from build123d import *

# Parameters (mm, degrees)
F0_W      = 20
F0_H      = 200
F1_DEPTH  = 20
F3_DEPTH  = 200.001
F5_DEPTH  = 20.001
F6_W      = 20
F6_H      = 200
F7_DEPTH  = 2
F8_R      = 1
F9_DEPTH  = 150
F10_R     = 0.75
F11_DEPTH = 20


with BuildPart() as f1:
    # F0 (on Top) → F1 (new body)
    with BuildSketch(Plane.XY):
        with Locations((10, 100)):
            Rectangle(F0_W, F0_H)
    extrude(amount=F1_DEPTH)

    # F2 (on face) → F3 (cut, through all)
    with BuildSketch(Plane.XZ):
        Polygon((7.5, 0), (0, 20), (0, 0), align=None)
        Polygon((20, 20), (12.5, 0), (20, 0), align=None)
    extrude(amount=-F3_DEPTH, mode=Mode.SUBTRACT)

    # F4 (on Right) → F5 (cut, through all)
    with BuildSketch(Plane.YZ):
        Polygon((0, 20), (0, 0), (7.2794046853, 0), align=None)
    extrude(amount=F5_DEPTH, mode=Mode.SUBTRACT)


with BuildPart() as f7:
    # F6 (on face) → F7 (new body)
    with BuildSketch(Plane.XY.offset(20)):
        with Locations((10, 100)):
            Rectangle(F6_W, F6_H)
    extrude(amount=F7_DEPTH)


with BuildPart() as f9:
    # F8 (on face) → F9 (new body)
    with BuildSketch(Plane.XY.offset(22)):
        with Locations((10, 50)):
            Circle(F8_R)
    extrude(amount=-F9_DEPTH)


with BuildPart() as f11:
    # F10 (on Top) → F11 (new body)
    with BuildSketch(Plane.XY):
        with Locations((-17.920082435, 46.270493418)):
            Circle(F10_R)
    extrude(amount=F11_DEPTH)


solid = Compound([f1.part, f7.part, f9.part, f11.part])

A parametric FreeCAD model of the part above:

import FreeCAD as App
import Part
import Sketcher

V = App.Vector
Q = App.Units.Quantity

doc = App.newDocument("Part")
params = doc.addObject("Spreadsheet::Sheet", "Params")
for row, (alias, value) in enumerate([
    ("sketch1_width", "20 mm"),
    ("sketch1_height", "200 mm"),
    ("pad1_length", "20 mm"),
    ("sketch2_height", "20 mm"),
    ("sketch2_width", "7.5 mm"),
    ("sketch3_height", "20 mm"),
    ("sketch4_width", "20 mm"),
    ("sketch4_height", "200 mm"),
    ("pad2_length", "2 mm"),
    ("sketch5_diameter", "2 mm"),
    ("pad3_length", "150 mm"),
    ("sketch6_diameter", "1.5 mm"),
    ("pad4_length", "20 mm"),
], start=1):
    params.set(f"A{row}", alias)
    params.set(f"B{row}", "=" + value)
    params.setAlias(f"B{row}", alias)

body = doc.addObject("PartDesign::Body", "Body")

# Sketch on XY plane
sketch1 = body.newObject("Sketcher::SketchObject", "Sketch")
sketch1.AttachmentSupport = (doc.getObject("XY_Plane"), [""])
sketch1.MapMode = "FlatFace"
sketch1.addGeometry([
    Part.LineSegment(V(0, 200, 0), V(0, 0, 0)),
    Part.LineSegment(V(0, 0, 0), V(20, 0, 0)),
    Part.LineSegment(V(20, 0, 0), V(20, 200, 0)),
    Part.LineSegment(V(20, 200, 0), V(0, 200, 0)),
], False)
sketch1.addConstraint([
    Sketcher.Constraint("Coincident", 0, 2, 1, 1),
    Sketcher.Constraint("Coincident", 1, 2, 2, 1),
    Sketcher.Constraint("Coincident", 2, 2, 3, 1),
    Sketcher.Constraint("Coincident", 3, 2, 0, 1),
    Sketcher.Constraint("Vertical", 0),
    Sketcher.Constraint("Horizontal", 1),
    Sketcher.Constraint("Vertical", 2),
    Sketcher.Constraint("Horizontal", 3),
    Sketcher.Constraint("Coincident", 0, 2, -1, 1),
    Sketcher.Constraint("DistanceX", 1, 1, 1, 2, 20.0),
    Sketcher.Constraint("DistanceY", 0, 2, 0, 1, 200.0),
])
sketch1.setExpression("Constraints[9]", "Params.sketch1_width")
sketch1.setExpression("Constraints[10]", "Params.sketch1_height")
pad1 = body.newObject("PartDesign::Pad", "Pad")
pad1.Profile = sketch1
pad1.setExpression("Length", "Params.pad1_length")

# Sketch on XZ plane
sketch2 = body.newObject("Sketcher::SketchObject", "Sketch001")
sketch2.AttachmentSupport = (doc.getObject("XZ_Plane"), [""])
sketch2.MapMode = "FlatFace"
sketch2.addGeometry([
    Part.LineSegment(V(7.5, 0, 0), V(0, 20, 0)),  # 0
    Part.LineSegment(V(0, 20, 0), V(0, 0, 0)),  # 1
    Part.LineSegment(V(0, 0, 0), V(7.5, 0, 0)),  # 2
    Part.LineSegment(V(20, 20, 0), V(12.5, 0, 0)),  # 3
    Part.LineSegment(V(12.5, 0, 0), V(20, 0, 0)),  # 4
    Part.LineSegment(V(20, 0, 0), V(20, 20, 0)),  # 5
], False)
sketch2.addConstraint([
    Sketcher.Constraint("Coincident", 0, 2, 1, 1),
    Sketcher.Constraint("Coincident", 1, 2, 2, 1),
    Sketcher.Constraint("Coincident", 2, 2, 0, 1),
    Sketcher.Constraint("Coincident", 3, 2, 4, 1),
    Sketcher.Constraint("Coincident", 4, 2, 5, 1),
    Sketcher.Constraint("Coincident", 5, 2, 3, 1),
    Sketcher.Constraint("Vertical", 1),
    Sketcher.Constraint("Horizontal", 2),
    Sketcher.Constraint("Horizontal", 4),
    Sketcher.Constraint("Vertical", 5),
    Sketcher.Constraint("Coincident", 1, 2, -1, 1),
    Sketcher.Constraint("PointOnObject", 3, 2, -1),
    Sketcher.Constraint("Horizontal", 0, 2, 5, 2),
    Sketcher.Constraint("Equal", 2, 4),
    Sketcher.Constraint("DistanceY", 1, 2, 1, 1, 20.0),
    Sketcher.Constraint("DistanceX", 2, 1, 2, 2, 7.5),
    Sketcher.Constraint("DistanceX", -1, 1, 4, 2, 20.0),
])
sketch2.setExpression("Constraints[14]", "Params.sketch2_height")
sketch2.setExpression("Constraints[15]", "Params.sketch2_width")
pocket1 = body.newObject("PartDesign::Pocket", "Pocket")
pocket1.Profile = sketch2
pocket1.Type = "ThroughAll"

# Sketch on YZ plane
sketch3 = body.newObject("Sketcher::SketchObject", "Sketch002")
sketch3.AttachmentSupport = (doc.getObject("YZ_Plane"), [""])
sketch3.MapMode = "FlatFace"
sketch3.addGeometry([
    Part.LineSegment(V(0, 20, 0), V(0, 0, 0)),
    Part.LineSegment(V(0, 0, 0), V(7.279405, 0, 0)),
    Part.LineSegment(V(7.279405, 0, 0), V(0, 20, 0)),
], False)
sketch3.addConstraint([
    Sketcher.Constraint("Coincident", 0, 2, 1, 1),
    Sketcher.Constraint("Coincident", 1, 2, 2, 1),
    Sketcher.Constraint("Coincident", 2, 2, 0, 1),
    Sketcher.Constraint("Vertical", 0),
    Sketcher.Constraint("Horizontal", 1),
    Sketcher.Constraint("Coincident", 0, 2, -1, 1),
    Sketcher.Constraint("DistanceY", 0, 2, 0, 1, 20.0),
    Sketcher.Constraint("Angle", 2, Q("110 deg")),
])
sketch3.setExpression("Constraints[6]", "Params.sketch3_height")
pocket2 = body.newObject("PartDesign::Pocket", "Pocket001")
pocket2.Profile = sketch3
pocket2.Type = "ThroughAll"
pocket2.Reversed = True
body2 = doc.addObject("PartDesign::Body", "Body001")

# Sketch on XY plane
sketch4 = body2.newObject("Sketcher::SketchObject", "Sketch003")
sketch4.AttachmentSupport = (doc.getObject("XY_Plane001"), [""])
sketch4.MapMode = "FlatFace"
sketch4.AttachmentOffset = App.Placement(V(0, 0, 20), App.Rotation())
sketch4.addGeometry([
    Part.LineSegment(V(0, 200, 0), V(0, 0, 0)),
    Part.LineSegment(V(0, 0, 0), V(20, 0, 0)),
    Part.LineSegment(V(20, 0, 0), V(20, 200, 0)),
    Part.LineSegment(V(20, 200, 0), V(0, 200, 0)),
], False)
sketch4.addConstraint([
    Sketcher.Constraint("Coincident", 0, 2, 1, 1),
    Sketcher.Constraint("Coincident", 1, 2, 2, 1),
    Sketcher.Constraint("Coincident", 2, 2, 3, 1),
    Sketcher.Constraint("Coincident", 3, 2, 0, 1),
    Sketcher.Constraint("Vertical", 0),
    Sketcher.Constraint("Horizontal", 1),
    Sketcher.Constraint("Vertical", 2),
    Sketcher.Constraint("Horizontal", 3),
    Sketcher.Constraint("Coincident", 0, 2, -1, 1),
    Sketcher.Constraint("DistanceX", 1, 1, 1, 2, 20.0),
    Sketcher.Constraint("DistanceY", 0, 2, 0, 1, 200.0),
])
sketch4.setExpression("Constraints[9]", "Params.sketch4_width")
sketch4.setExpression("Constraints[10]", "Params.sketch4_height")
pad2 = body2.newObject("PartDesign::Pad", "Pad001")
pad2.Profile = sketch4
pad2.setExpression("Length", "Params.pad2_length")
body3 = doc.addObject("PartDesign::Body", "Body002")

# Sketch on XY plane
sketch5 = body3.newObject("Sketcher::SketchObject", "Sketch004")
sketch5.AttachmentSupport = (doc.getObject("XY_Plane002"), [""])
sketch5.MapMode = "FlatFace"
sketch5.AttachmentOffset = App.Placement(V(0, 0, 22), App.Rotation())
sketch5.addGeometry(Part.Circle(V(10, 50, 0), V(0, 0, 1), 1), False)
sketch5.addConstraint([
    Sketcher.Constraint("Diameter", 0, 2.0),
    Sketcher.Constraint("DistanceX", -1, 1, 0, 3, 10.0),
    Sketcher.Constraint("DistanceY", -1, 1, 0, 3, 50.0),
])
sketch5.setExpression("Constraints[0]", "Params.sketch5_diameter")
pad3 = body3.newObject("PartDesign::Pad", "Pad002")
pad3.Profile = sketch5
pad3.setExpression("Length", "Params.pad3_length")
pad3.Reversed = True
body4 = doc.addObject("PartDesign::Body", "Body003")

# Sketch on XY plane
sketch6 = body4.newObject("Sketcher::SketchObject", "Sketch005")
sketch6.AttachmentSupport = (doc.getObject("XY_Plane003"), [""])
sketch6.MapMode = "FlatFace"
sketch6.addGeometry(Part.Circle(V(-17.920082, 46.270493, 0), V(0, 0, 1), 0.75), False)
sketch6.addConstraint([
    Sketcher.Constraint("Diameter", 0, 1.5),
    Sketcher.Constraint("DistanceX", 0, 3, -1, 1, 17.920082),
    Sketcher.Constraint("DistanceY", -1, 1, 0, 3, 46.270493),
])
sketch6.setExpression("Constraints[0]", "Params.sketch6_diameter")
pad4 = body4.newObject("PartDesign::Pad", "Pad003")
pad4.Profile = sketch6
pad4.setExpression("Length", "Params.pad4_length")

doc.recompute()
